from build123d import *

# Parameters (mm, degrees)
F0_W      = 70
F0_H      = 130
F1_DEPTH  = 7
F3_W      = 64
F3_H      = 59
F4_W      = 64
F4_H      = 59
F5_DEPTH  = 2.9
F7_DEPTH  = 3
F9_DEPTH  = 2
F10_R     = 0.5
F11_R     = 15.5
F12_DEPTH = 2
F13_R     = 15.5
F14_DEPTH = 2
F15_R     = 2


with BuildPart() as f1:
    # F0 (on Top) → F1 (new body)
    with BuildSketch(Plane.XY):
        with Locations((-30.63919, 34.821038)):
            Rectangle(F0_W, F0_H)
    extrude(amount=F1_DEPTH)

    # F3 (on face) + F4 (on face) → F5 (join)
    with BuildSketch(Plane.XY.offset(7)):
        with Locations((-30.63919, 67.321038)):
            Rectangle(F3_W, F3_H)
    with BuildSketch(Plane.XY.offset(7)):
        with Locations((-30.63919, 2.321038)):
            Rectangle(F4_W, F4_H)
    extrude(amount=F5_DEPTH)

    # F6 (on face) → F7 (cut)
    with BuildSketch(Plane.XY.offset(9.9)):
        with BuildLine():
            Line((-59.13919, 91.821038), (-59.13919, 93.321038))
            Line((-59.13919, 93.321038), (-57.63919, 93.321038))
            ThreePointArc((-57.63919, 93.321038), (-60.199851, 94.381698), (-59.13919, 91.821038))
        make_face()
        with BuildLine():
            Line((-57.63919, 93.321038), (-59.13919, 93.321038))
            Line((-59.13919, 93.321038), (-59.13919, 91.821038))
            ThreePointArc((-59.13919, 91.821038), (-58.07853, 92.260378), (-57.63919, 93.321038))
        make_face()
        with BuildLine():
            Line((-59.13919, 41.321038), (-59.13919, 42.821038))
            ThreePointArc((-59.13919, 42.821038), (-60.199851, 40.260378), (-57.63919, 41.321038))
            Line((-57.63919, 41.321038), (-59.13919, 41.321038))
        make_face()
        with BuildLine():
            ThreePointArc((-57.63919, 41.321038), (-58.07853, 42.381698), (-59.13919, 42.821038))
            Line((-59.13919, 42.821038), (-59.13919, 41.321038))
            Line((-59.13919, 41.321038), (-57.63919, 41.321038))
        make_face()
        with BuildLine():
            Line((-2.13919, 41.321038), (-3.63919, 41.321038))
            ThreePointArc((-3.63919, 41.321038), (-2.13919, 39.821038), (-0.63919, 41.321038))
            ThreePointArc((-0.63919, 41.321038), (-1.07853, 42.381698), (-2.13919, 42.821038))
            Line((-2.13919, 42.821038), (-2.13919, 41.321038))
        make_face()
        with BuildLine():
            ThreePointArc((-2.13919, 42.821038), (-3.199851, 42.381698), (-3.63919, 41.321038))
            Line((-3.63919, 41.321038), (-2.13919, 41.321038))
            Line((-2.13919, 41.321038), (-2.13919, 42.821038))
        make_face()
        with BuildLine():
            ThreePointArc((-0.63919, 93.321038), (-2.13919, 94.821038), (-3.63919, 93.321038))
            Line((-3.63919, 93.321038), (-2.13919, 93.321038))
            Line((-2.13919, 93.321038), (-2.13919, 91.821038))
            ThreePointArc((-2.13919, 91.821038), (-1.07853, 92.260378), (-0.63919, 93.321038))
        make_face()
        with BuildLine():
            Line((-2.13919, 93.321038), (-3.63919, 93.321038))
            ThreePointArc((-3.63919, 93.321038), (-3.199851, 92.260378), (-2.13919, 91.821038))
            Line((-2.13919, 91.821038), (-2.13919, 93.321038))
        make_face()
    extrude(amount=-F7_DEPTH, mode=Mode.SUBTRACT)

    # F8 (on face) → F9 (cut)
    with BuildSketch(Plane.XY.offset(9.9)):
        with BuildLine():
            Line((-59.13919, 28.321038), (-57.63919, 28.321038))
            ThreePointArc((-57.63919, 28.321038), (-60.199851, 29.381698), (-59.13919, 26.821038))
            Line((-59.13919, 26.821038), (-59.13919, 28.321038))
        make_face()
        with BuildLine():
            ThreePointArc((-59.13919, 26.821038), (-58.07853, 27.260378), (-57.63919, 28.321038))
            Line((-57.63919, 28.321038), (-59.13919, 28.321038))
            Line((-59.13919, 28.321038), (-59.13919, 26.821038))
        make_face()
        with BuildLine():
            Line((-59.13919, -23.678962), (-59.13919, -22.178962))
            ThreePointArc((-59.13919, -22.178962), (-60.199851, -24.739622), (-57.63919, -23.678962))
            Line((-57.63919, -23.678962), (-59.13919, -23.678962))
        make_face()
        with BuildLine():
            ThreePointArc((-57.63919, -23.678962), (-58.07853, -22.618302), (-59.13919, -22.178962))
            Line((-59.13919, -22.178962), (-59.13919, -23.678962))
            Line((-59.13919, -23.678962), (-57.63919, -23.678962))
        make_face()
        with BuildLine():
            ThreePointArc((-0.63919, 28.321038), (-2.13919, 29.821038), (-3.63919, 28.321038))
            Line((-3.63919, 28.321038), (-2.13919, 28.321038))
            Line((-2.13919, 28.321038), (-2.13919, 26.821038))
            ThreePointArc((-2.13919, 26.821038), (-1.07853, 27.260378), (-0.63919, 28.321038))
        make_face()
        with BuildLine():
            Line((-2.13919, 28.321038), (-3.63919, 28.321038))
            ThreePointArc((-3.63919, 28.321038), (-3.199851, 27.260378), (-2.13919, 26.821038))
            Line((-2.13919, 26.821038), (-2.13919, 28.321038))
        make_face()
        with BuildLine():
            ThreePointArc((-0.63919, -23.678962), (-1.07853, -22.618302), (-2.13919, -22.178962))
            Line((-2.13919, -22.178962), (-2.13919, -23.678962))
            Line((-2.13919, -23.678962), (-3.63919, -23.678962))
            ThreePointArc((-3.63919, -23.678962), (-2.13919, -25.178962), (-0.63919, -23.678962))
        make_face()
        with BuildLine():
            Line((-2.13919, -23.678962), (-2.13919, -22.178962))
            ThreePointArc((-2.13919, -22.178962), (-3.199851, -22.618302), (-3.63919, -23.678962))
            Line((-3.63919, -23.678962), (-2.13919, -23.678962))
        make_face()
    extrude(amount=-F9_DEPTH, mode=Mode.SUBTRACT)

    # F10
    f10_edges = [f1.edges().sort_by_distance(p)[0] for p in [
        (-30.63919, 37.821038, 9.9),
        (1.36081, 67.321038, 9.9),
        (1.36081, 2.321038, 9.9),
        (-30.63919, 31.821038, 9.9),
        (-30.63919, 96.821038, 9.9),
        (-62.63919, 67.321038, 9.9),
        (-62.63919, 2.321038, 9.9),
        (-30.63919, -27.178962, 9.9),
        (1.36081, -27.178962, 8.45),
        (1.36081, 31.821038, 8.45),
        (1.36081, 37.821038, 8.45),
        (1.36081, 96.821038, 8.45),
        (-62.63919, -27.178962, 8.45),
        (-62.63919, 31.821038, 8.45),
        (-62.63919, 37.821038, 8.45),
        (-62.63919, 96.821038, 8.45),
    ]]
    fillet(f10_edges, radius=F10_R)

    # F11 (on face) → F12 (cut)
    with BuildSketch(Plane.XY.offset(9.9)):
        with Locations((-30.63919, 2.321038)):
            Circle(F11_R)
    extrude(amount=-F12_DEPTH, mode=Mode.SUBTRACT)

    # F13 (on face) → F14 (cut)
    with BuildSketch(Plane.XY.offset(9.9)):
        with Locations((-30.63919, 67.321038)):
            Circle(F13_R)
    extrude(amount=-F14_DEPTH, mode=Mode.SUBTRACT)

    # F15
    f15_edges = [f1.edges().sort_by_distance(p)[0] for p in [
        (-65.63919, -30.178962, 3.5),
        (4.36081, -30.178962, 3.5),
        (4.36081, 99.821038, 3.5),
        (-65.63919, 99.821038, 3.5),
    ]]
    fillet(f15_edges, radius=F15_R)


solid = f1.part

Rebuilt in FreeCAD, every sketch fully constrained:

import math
import FreeCAD as App
import Part
import Sketcher

V = App.Vector


def edges_at(feature, points):
    """Names of the edges that pass closest to the given points."""
    edges = feature.Shape.Edges
    near = lambda p: min(range(len(edges)), key=lambda i: edges[i].distToShape(Part.Vertex(*p))[0])
    return sorted({f"Edge{near(p) + 1}" for p in points})

doc = App.newDocument("Part")
body = doc.addObject("PartDesign::Body", "Body")

sketch1 = body.newObject("Sketcher::SketchObject", "Sketch")
sketch1.AttachmentSupport = (doc.getObject("XY_Plane"), [""])
sketch1.MapMode = "FlatFace"
sketch1.addGeometry(Part.LineSegment(V(-66, 100, 0), V(-66, -30, 0)), False)
sketch1.addGeometry(Part.LineSegment(V(-66, -30, 0), V(4, -30, 0)), False)
sketch1.addGeometry(Part.LineSegment(V(4, -30, 0), V(4, 100, 0)), False)
sketch1.addGeometry(Part.LineSegment(V(4, 100, 0), V(-66, 100, 0)), False)
sketch1.addConstraint(Sketcher.Constraint("Coincident", 0, 2, 1, 1))
sketch1.addConstraint(Sketcher.Constraint("Coincident", 1, 2, 2, 1))
sketch1.addConstraint(Sketcher.Constraint("Coincident", 2, 2, 3, 1))
sketch1.addConstraint(Sketcher.Constraint("Coincident", 3, 2, 0, 1))
sketch1.addConstraint(Sketcher.Constraint("Vertical", 0))
sketch1.addConstraint(Sketcher.Constraint("Horizontal", 1))
sketch1.addConstraint(Sketcher.Constraint("Vertical", 2))
sketch1.addConstraint(Sketcher.Constraint("Horizontal", 3))
sketch1.addConstraint(Sketcher.Constraint("DistanceX", 1, 1, 1, 2, 70.0))
sketch1.addConstraint(Sketcher.Constraint("DistanceY", 0, 2, 0, 1, 130.0))
sketch1.addConstraint(Sketcher.Constraint("DistanceX", 0, 2, -1, 1, 65.63919))
sketch1.addConstraint(Sketcher.Constraint("DistanceY", 0, 2, -1, 1, 30.178962))
pad1 = body.newObject("PartDesign::Pad", "Pad")
pad1.Profile = sketch1
pad1.Length = 7

sketch2 = body.newObject("Sketcher::SketchObject", "Sketch001")
sketch2.AttachmentSupport = (doc.getObject("XY_Plane"), [""])
sketch2.MapMode = "FlatFace"
sketch2.AttachmentOffset = App.Placement(V(0, 0, 7), App.Rotation())
sketch2.addGeometry(Part.LineSegment(V(-63, 97, 0), V(-63, 38, 0)), False)
sketch2.addGeometry(Part.LineSegment(V(-63, 38, 0), V(1, 38, 0)), False)
sketch2.addGeometry(Part.LineSegment(V(1, 38, 0), V(1, 97, 0)), False)
sketch2.addGeometry(Part.LineSegment(V(1, 97, 0), V(-63, 97, 0)), False)
sketch2.addGeometry(Part.LineSegment(V(-63, 32, 0), V(-63, -27, 0)), False)
sketch2.addGeometry(Part.LineSegment(V(-63, -27, 0), V(1, -27, 0)), False)
sketch2.addGeometry(Part.LineSegment(V(1, -27, 0), V(1, 32, 0)), False)
sketch2.addGeometry(Part.LineSegment(V(1, 32, 0), V(-63, 32, 0)), False)
sketch2.addConstraint(Sketcher.Constraint("Coincident", 0, 2, 1, 1))
sketch2.addConstraint(Sketcher.Constraint("Coincident", 1, 2, 2, 1))
sketch2.addConstraint(Sketcher.Constraint("Coincident", 2, 2, 3, 1))
sketch2.addConstraint(Sketcher.Constraint("Coincident", 3, 2, 0, 1))
sketch2.addConstraint(Sketcher.Constraint("Coincident", 4, 2, 5, 1))
sketch2.addConstraint(Sketcher.Constraint("Coincident", 5, 2, 6, 1))
sketch2.addConstraint(Sketcher.Constraint("Coincident", 6, 2, 7, 1))
sketch2.addConstraint(Sketcher.Constraint("Coincident", 7, 2, 4, 1))
sketch2.addConstraint(Sketcher.Constraint("Vertical", 0))
sketch2.addConstraint(Sketcher.Constraint("Horizontal", 1))
sketch2.addConstraint(Sketcher.Constraint("Vertical", 2))
sketch2.addConstraint(Sketcher.Constraint("Horizontal", 3))
sketch2.addConstraint(Sketcher.Constraint("Vertical", 4))
sketch2.addConstraint(Sketcher.Constraint("Horizontal", 5))
sketch2.addConstraint(Sketcher.Constraint("Vertical", 6))
sketch2.addConstraint(Sketcher.Constraint("Horizontal", 7))
sketch2.addConstraint(Sketcher.Constraint("Vertical", 3, 2, 4, 2))
sketch2.addConstraint(Sketcher.Constraint("Vertical", 2, 2, 5, 2))
sketch2.addConstraint(Sketcher.Constraint("Equal", 2, 4))
sketch2.addConstraint(Sketcher.Constraint("DistanceX", 1, 1, 1, 2, 64.0))
sketch2.addConstraint(Sketcher.Constraint("DistanceY", 0, 2, 0, 1, 59.0))
sketch2.addConstraint(Sketcher.Constraint("DistanceY", 4, 2, 0, 2, 65.0))
sketch2.addConstraint(Sketcher.Constraint("DistanceX", 0, 2, -1, 1, 62.63919))
sketch2.addConstraint(Sketcher.Constraint("DistanceY", -1, 1, 2, 2, 96.821038))
pad2 = body.newObject("PartDesign::Pad", "Pad001")
pad2.Profile = sketch2
pad2.Length = 2.9

sketch3 = body.newObject("Sketcher::SketchObject", "Sketch002")
sketch3.AttachmentSupport = (doc.getObject("XY_Plane"), [""])
sketch3.MapMode = "FlatFace"
sketch3.AttachmentOffset = App.Placement(V(0, 0, 9.9), App.Rotation())
sketch3.addGeometry(Part.ArcOfCircle(Part.Circle(V(-59.1, 93.3, 0), V(0, 0, 1), 1.5), math.radians(0), math.radians(270)), False)
sketch3.addGeometry(Part.ArcOfCircle(Part.Circle(V(-59.1, 93.3, 0), V(0, 0, 1), 1.5), math.radians(-90), math.radians(0)), False)
sketch3.addGeometry(Part.ArcOfCircle(Part.Circle(V(-59.1, 41.3, 0), V(0, 0, 1), 1.5), math.radians(90), math.radians(360)), False)
sketch3.addGeometry(Part.ArcOfCircle(Part.Circle(V(-59.1, 41.3, 0), V(0, 0, 1), 1.5), math.radians(0), math.radians(90)), False)
sketch3.addGeometry(Part.ArcOfCircle(Part.Circle(V(-2.1, 41.3, 0), V(0, 0, 1), 1.5), math.radians(180), math.radians(360)), False)
sketch3.addGeometry(Part.ArcOfCircle(Part.Circle(V(-2.1, 41.3, 0), V(0, 0, 1), 1.5), math.radians(0), math.radians(90)), False)
sketch3.addGeometry(Part.ArcOfCircle(Part.Circle(V(-2.1, 41.3, 0), V(0, 0, 1), 1.5), math.radians(90), math.radians(180)), False)
sketch3.addGeometry(Part.ArcOfCircle(Part.Circle(V(-2.1, 93.3, 0), V(0, 0, 1), 1.5), math.radians(0), math.radians(180)), False)
sketch3.addGeometry(Part.ArcOfCircle(Part.Circle(V(-2.1, 93.3, 0), V(0, 0, 1), 1.5), math.radians(180), math.radians(270)), False)
sketch3.addGeometry(Part.ArcOfCircle(Part.Circle(V(-2.1, 93.3, 0), V(0, 0, 1), 1.5), math.radians(-90), math.radians(0)), False)
sketch3.addConstraint(Sketcher.Constraint("Tangent", 0, 1, 1, 2))
sketch3.addConstraint(Sketcher.Constraint("Coincident", 1, 1, 0, 2))
sketch3.addConstraint(Sketcher.Constraint("Tangent", 2, 1, 3, 2))
sketch3.addConstraint(Sketcher.Constraint("Coincident", 3, 1, 2, 2))
sketch3.addConstraint(Sketcher.Constraint("Tangent", 4, 2, 5, 1))
sketch3.addConstraint(Sketcher.Constraint("Tangent", 5, 2, 6, 1))
sketch3.addConstraint(Sketcher.Constraint("Tangent", 6, 2, 4, 1))
sketch3.addConstraint(Sketcher.Constraint("Tangent", 7, 2, 8, 1))
sketch3.addConstraint(Sketcher.Constraint("Tangent", 8, 2, 9, 1))
sketch3.addConstraint(Sketcher.Constraint("Tangent", 9, 2, 7, 1))
sketch3.addConstraint(Sketcher.Constraint("Equal", 1, 2))
sketch3.addConstraint(Sketcher.Constraint("Equal", 3, 4))
sketch3.addConstraint(Sketcher.Constraint("Equal", 6, 7))
sketch3.addConstraint(Sketcher.Constraint("Horizontal", 3, 3, 4, 3))
sketch3.addConstraint(Sketcher.Constraint("Horizontal", 1, 3, 7, 3))
sketch3.addConstraint(Sketcher.Constraint("Horizontal", 9, 3, 0, 1))
sketch3.addConstraint(Sketcher.Constraint("Horizontal", 6, 3, 3, 1))
sketch3.addConstraint(Sketcher.Constraint("Horizontal", 3, 1, 4, 2))
sketch3.addConstraint(Sketcher.Constraint("Horizontal", 4, 2, 6, 2))
sketch3.addConstraint(Sketcher.Constraint("Horizontal", 0, 1, 7, 2))
sketch3.addConstraint(Sketcher.Constraint("Horizontal", 7, 2, 9, 2))
sketch3.addConstraint(Sketcher.Constraint("Vertical", 1, 3, 2, 3))
sketch3.addConstraint(Sketcher.Constraint("Vertical", 6, 3, 7, 3))
sketch3.addConstraint(Sketcher.Constraint("Vertical", 3, 3, 1, 1))
sketch3.addConstraint(Sketcher.Constraint("Vertical", 1, 1, 2, 1))
sketch3.addConstraint(Sketcher.Constraint("Vertical", 9, 3, 5, 2))
sketch3.addConstraint(Sketcher.Constraint("Vertical", 5, 2, 8, 2))
sketch3.addConstraint(Sketcher.Constraint("Radius", 0, 1.5))
sketch3.addConstraint(Sketcher.Constraint("DistanceY", 2, 3, 0, 3, 52.0))
sketch3.addConstraint(Sketcher.Constraint("DistanceX", 2, 3, 4, 3, 57.0))
sketch3.addConstraint(Sketcher.Constraint("DistanceX", 0, 3, -1, 1, 59.13919))
sketch3.addConstraint(Sketcher.Constraint("DistanceY", -1, 1, 0, 3, 93.321038))
pocket1 = body.newObject("PartDesign::Pocket", "Pocket")
pocket1.Profile = sketch3
pocket1.Length = 3

sketch4 = body.newObject("Sketcher::SketchObject", "Sketch003")
sketch4.AttachmentSupport = (doc.getObject("XY_Plane"), [""])
sketch4.MapMode = "FlatFace"
sketch4.AttachmentOffset = App.Placement(V(0, 0, 9.9), App.Rotation())
sketch4.addGeometry(Part.ArcOfCircle(Part.Circle(V(-59.1, 28.3, 0), V(0, 0, 1), 1.5), math.radians(0), math.radians(270)), False)
sketch4.addGeometry(Part.ArcOfCircle(Part.Circle(V(-59.1, 28.3, 0), V(0, 0, 1), 1.5), math.radians(-90), math.radians(0)), False)
sketch4.addGeometry(Part.ArcOfCircle(Part.Circle(V(-59.1, -23.7, 0), V(0, 0, 1), 1.5), math.radians(90), math.radians(360)), False)
sketch4.addGeometry(Part.ArcOfCircle(Part.Circle(V(-59.1, -23.7, 0), V(0, 0, 1), 1.5), math.radians(0), math.radians(90)), False)
sketch4.addGeometry(Part.ArcOfCircle(Part.Circle(V(-2.1, 28.3, 0), V(0, 0, 1), 1.5), math.radians(0), math.radians(180)), False)
sketch4.addGeometry(Part.ArcOfCircle(Part.Circle(V(-2.1, 28.3, 0), V(0, 0, 1), 1.5), math.radians(180), math.radians(270)), False)
sketch4.addGeometry(Part.ArcOfCircle(Part.Circle(V(-2.1, 28.3, 0), V(0, 0, 1), 1.5), math.radians(-90), math.radians(0)), False)
sketch4.addGeometry(Part.ArcOfCircle(Part.Circle(V(-2.1, -23.7, 0), V(0, 0, 1), 1.5), math.radians(0), math.radians(90)), False)
sketch4.addGeometry(Part.ArcOfCircle(Part.Circle(V(-2.1, -23.7, 0), V(0, 0, 1), 1.5), math.radians(90), math.radians(180)), False)
sketch4.addGeometry(Part.ArcOfCircle(Part.Circle(V(-2.1, -23.7, 0), V(0, 0, 1), 1.5), math.radians(180), math.radians(360)), False)
sketch4.addConstraint(Sketcher.Constraint("Tangent", 0, 1, 1, 2))
sketch4.addConstraint(Sketcher.Constraint("Coincident", 1, 1, 0, 2))
sketch4.addConstraint(Sketcher.Constraint("Tangent", 2, 1, 3, 2))
sketch4.addConstraint(Sketcher.Constraint("Coincident", 3, 1, 2, 2))
sketch4.addConstraint(Sketcher.Constraint("Tangent", 4, 2, 5, 1))
sketch4.addConstraint(Sketcher.Constraint("Tangent", 5, 2, 6, 1))
sketch4.addConstraint(Sketcher.Constraint("Tangent", 6, 2, 4, 1))
sketch4.addConstraint(Sketcher.Constraint("Tangent", 7, 2, 8, 1))
sketch4.addConstraint(Sketcher.Constraint("Tangent", 8, 2, 9, 1))
sketch4.addConstraint(Sketcher.Constraint("Tangent", 9, 2, 7, 1))
sketch4.addConstraint(Sketcher.Constraint("Equal", 1, 2))
sketch4.addConstraint(Sketcher.Constraint("Equal", 3, 4))
sketch4.addConstraint(Sketcher.Constraint("Equal", 6, 7))
sketch4.addConstraint(Sketcher.Constraint("Horizontal", 1, 3, 4, 3))
sketch4.addConstraint(Sketcher.Constraint("Horizontal", 3, 3, 7, 3))
sketch4.addConstraint(Sketcher.Constraint("Horizontal", 6, 3, 0, 1))
sketch4.addConstraint(Sketcher.Constraint("Horizontal", 9, 3, 3, 1))
sketch4.addConstraint(Sketcher.Constraint("Horizontal", 0, 1, 4, 2))
sketch4.addConstraint(Sketcher.Constraint("Horizontal", 4, 2, 6, 2))
sketch4.addConstraint(Sketcher.Constraint("Horizontal", 3, 1, 8, 2))
sketch4.addConstraint(Sketcher.Constraint("Horizontal", 8, 2, 9, 2))
sketch4.addConstraint(Sketcher.Constraint("Vertical", 1, 3, 2, 3))
sketch4.addConstraint(Sketcher.Constraint("Vertical", 6, 3, 7, 3))
sketch4.addConstraint(Sketcher.Constraint("Vertical", 3, 3, 1, 1))
sketch4.addConstraint(Sketcher.Constraint("Vertical", 1, 1, 2, 1))
sketch4.addConstraint(Sketcher.Constraint("Vertical", 9, 3, 5, 2))
sketch4.addConstraint(Sketcher.Constraint("Vertical", 5, 2, 7, 2))
sketch4.addConstraint(Sketcher.Constraint("Radius", 0, 1.5))
sketch4.addConstraint(Sketcher.Constraint("DistanceY", 2, 3, 0, 3, 52.0))
sketch4.addConstraint(Sketcher.Constraint("DistanceX", 0, 3, 4, 3, 57.0))
sketch4.addConstraint(Sketcher.Constraint("DistanceX", 0, 3, -1, 1, 59.13919))
sketch4.addConstraint(Sketcher.Constraint("DistanceY", -1, 1, 0, 3, 28.321038))
pocket2 = body.newObject("PartDesign::Pocket", "Pocket001")
pocket2.Profile = sketch4
pocket2.Length = 2
doc.recompute()

fillet = body.newObject("PartDesign::Fillet", "Fillet")
fillet.Base = (pocket2, edges_at(pocket2, [
    (-30.639, 37.821, 9.9),
    (1.361, 67.321, 9.9),
    (1.361, 2.321, 9.9),
    (-30.639, 31.821, 9.9),
    (-30.639, 96.821, 9.9),
    (-62.639, 67.321, 9.9),
    (-62.639, 2.321, 9.9),
    (-30.639, -27.179, 9.9),
    (1.361, -27.179, 8.45),
    (1.361, 31.821, 8.45),
    (1.361, 37.821, 8.45),
    (1.361, 96.821, 8.45),
    (-62.639, -27.179, 8.45),
    (-62.639, 31.821, 8.45),
    (-62.639, 37.821, 8.45),
    (-62.639, 96.821, 8.45),
]))
fillet.Radius = 0.5

sketch5 = body.newObject("Sketcher::SketchObject", "Sketch004")
sketch5.AttachmentSupport = (doc.getObject("XY_Plane"), [""])
sketch5.MapMode = "FlatFace"
sketch5.AttachmentOffset = App.Placement(V(0, 0, 9.9), App.Rotation())
sketch5.addGeometry(Part.Circle(V(-31, 2, 0), V(0, 0, 1), 16), False)
sketch5.addConstraint(Sketcher.Constraint("Diameter", 0, 31.0))
sketch5.addConstraint(Sketcher.Constraint("DistanceX", 0, 3, -1, 1, 30.63919))
sketch5.addConstraint(Sketcher.Constraint("DistanceY", -1, 1, 0, 3, 2.321038))
pocket3 = body.newObject("PartDesign::Pocket", "Pocket002")
pocket3.Profile = sketch5
pocket3.Length = 2

sketch6 = body.newObject("Sketcher::SketchObject", "Sketch005")
sketch6.AttachmentSupport = (doc.getObject("XY_Plane"), [""])
sketch6.MapMode = "FlatFace"
sketch6.AttachmentOffset = App.Placement(V(0, 0, 9.9), App.Rotation())
sketch6.addGeometry(Part.Circle(V(-31, 67, 0), V(0, 0, 1), 16), False)
sketch6.addConstraint(Sketcher.Constraint("Diameter", 0, 31.0))
sketch6.addConstraint(Sketcher.Constraint("DistanceX", 0, 3, -1, 1, 30.63919))
sketch6.addConstraint(Sketcher.Constraint("DistanceY", -1, 1, 0, 3, 67.321038))
pocket4 = body.newObject("PartDesign::Pocket", "Pocket003")
pocket4.Profile = sketch6
pocket4.Length = 2
doc.recompute()

fillet2 = body.newObject("PartDesign::Fillet", "Fillet001")
fillet2.Base = (pocket4, edges_at(pocket4, [
    (-65.639, -30.179, 3.5),
    (4.361, -30.179, 3.5),
    (4.361, 99.821, 3.5),
    (-65.639, 99.821, 3.5),
]))
fillet2.Radius = 2

doc.recompute()
